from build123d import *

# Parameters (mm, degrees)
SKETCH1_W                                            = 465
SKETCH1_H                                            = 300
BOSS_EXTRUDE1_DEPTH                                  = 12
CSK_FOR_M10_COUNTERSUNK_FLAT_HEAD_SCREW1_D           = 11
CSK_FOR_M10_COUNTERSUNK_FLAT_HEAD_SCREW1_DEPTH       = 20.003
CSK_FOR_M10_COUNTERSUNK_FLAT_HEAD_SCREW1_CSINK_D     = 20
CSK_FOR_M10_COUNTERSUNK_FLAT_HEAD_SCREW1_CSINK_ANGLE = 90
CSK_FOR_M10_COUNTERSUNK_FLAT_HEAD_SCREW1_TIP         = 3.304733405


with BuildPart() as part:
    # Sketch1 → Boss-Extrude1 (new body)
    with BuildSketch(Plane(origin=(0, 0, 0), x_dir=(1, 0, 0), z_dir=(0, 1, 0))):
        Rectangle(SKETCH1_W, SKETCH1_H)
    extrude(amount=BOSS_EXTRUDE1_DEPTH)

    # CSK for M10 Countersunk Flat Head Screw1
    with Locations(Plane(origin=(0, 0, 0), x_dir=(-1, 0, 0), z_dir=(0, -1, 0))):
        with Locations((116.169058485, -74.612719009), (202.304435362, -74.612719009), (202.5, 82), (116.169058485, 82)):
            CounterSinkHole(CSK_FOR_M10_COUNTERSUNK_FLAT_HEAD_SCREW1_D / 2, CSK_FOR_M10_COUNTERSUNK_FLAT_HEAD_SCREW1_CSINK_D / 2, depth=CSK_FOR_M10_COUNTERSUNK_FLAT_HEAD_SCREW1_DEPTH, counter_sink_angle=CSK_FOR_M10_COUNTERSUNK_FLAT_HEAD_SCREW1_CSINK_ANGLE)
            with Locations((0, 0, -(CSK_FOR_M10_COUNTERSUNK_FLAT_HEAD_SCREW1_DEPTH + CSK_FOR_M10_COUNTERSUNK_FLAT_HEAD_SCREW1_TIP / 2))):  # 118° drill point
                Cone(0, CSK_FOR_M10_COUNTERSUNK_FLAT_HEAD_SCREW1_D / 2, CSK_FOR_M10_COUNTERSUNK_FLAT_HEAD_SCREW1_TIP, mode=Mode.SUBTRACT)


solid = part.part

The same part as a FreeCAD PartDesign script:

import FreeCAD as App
import Part
import Sketcher

V = App.Vector
Q = App.Units.Quantity


def add_polygon(sketch, points):
    """Adds a closed chain of lines whose ends are joined by coincident constraints."""
    first, n = sketch.GeometryCount, len(points)
    for a, b in zip(points, points[1:] + points[:1]):
        sketch.addGeometry(Part.LineSegment(App.Vector(*a, 0), App.Vector(*b, 0)), False)
    for i in range(n):
        sketch.addConstraint(Sketcher.Constraint("Coincident", first + i, 2, first + (i + 1) % n, 1))

doc = App.newDocument("Part")
body = doc.addObject("PartDesign::Body", "Body")

sketch1 = body.newObject("Sketcher::SketchObject", "Sketch")
sketch1.AttachmentSupport = (doc.getObject("XZ_Plane"), [""])
sketch1.MapMode = "FlatFace"
add_polygon(sketch1, [(-232, -150), (-232, 150), (232, 150), (232, -150)])
sketch1.addConstraint([
    Sketcher.Constraint("Vertical", 0),
    Sketcher.Constraint("Horizontal", 1),
    Sketcher.Constraint("Vertical", 2),
    Sketcher.Constraint("Horizontal", 3),
    Sketcher.Constraint("Symmetric", 0, 2, 2, 2, -1, 1),
    Sketcher.Constraint("DistanceX", 1, 1, 1, 2, Q("465 mm")),
    Sketcher.Constraint("DistanceY", 0, 1, 0, 2, Q("300 mm")),
])
pad1 = body.newObject("PartDesign::Pad", "Pad")
pad1.Profile = sketch1
pad1.Length = 12
pad1.Reversed = True

sketch2 = body.newObject("Sketcher::SketchObject", "Sketch001")
sketch2.AttachmentSupport = (doc.getObject("XZ_Plane"), [""])
sketch2.MapMode = "FlatFace"
sketch2.addGeometry([
    Part.Circle(V(-116, 75, 0), V(0, 0, 1), 6),
    Part.Circle(V(-202, 75, 0), V(0, 0, 1), 6),
    Part.Circle(V(-202, -82, 0), V(0, 0, 1), 6),
    Part.Circle(V(-116, -82, 0), V(0, 0, 1), 6),
], False)
sketch2.addConstraint([
    Sketcher.Constraint("Equal", 0, 1),
    Sketcher.Constraint("Equal", 1, 2),
    Sketcher.Constraint("Equal", 2, 3),
    Sketcher.Constraint("Horizontal", 0, 3, 1, 3),
    Sketcher.Constraint("Horizontal", 2, 3, 3, 3),
    Sketcher.Constraint("Vertical", 0, 3, 3, 3),
    Sketcher.Constraint("Diameter", 0, Q("11 mm")),
    Sketcher.Constraint("DistanceY", 2, 3, -1, 1, Q("82 mm")),
    Sketcher.Constraint("DistanceX", 2, 3, -1, 1, Q("202.5 mm")),
    Sketcher.Constraint("DistanceX", 0, 3, -1, 1, Q("116.169058 mm")),
    Sketcher.Constraint("DistanceY", -1, 1, 0, 3, Q("74.612719 mm")),
    Sketcher.Constraint("DistanceX", 1, 3, -1, 1, Q("202.304435 mm")),
])
doc.recompute()
hole = body.newObject("PartDesign::Hole", "Hole")
hole.Profile = sketch2
hole.ThreadType = "None"
hole.Diameter = 11
hole.DepthType = "Dimension"
hole.Depth = 20.003
hole.DrillPoint = "Angled"
hole.DrillPointAngle = 118
hole.HoleCutType = "Countersink"
hole.HoleCutDiameter = 20
hole.HoleCutCountersinkAngle = 90

doc.recompute()
